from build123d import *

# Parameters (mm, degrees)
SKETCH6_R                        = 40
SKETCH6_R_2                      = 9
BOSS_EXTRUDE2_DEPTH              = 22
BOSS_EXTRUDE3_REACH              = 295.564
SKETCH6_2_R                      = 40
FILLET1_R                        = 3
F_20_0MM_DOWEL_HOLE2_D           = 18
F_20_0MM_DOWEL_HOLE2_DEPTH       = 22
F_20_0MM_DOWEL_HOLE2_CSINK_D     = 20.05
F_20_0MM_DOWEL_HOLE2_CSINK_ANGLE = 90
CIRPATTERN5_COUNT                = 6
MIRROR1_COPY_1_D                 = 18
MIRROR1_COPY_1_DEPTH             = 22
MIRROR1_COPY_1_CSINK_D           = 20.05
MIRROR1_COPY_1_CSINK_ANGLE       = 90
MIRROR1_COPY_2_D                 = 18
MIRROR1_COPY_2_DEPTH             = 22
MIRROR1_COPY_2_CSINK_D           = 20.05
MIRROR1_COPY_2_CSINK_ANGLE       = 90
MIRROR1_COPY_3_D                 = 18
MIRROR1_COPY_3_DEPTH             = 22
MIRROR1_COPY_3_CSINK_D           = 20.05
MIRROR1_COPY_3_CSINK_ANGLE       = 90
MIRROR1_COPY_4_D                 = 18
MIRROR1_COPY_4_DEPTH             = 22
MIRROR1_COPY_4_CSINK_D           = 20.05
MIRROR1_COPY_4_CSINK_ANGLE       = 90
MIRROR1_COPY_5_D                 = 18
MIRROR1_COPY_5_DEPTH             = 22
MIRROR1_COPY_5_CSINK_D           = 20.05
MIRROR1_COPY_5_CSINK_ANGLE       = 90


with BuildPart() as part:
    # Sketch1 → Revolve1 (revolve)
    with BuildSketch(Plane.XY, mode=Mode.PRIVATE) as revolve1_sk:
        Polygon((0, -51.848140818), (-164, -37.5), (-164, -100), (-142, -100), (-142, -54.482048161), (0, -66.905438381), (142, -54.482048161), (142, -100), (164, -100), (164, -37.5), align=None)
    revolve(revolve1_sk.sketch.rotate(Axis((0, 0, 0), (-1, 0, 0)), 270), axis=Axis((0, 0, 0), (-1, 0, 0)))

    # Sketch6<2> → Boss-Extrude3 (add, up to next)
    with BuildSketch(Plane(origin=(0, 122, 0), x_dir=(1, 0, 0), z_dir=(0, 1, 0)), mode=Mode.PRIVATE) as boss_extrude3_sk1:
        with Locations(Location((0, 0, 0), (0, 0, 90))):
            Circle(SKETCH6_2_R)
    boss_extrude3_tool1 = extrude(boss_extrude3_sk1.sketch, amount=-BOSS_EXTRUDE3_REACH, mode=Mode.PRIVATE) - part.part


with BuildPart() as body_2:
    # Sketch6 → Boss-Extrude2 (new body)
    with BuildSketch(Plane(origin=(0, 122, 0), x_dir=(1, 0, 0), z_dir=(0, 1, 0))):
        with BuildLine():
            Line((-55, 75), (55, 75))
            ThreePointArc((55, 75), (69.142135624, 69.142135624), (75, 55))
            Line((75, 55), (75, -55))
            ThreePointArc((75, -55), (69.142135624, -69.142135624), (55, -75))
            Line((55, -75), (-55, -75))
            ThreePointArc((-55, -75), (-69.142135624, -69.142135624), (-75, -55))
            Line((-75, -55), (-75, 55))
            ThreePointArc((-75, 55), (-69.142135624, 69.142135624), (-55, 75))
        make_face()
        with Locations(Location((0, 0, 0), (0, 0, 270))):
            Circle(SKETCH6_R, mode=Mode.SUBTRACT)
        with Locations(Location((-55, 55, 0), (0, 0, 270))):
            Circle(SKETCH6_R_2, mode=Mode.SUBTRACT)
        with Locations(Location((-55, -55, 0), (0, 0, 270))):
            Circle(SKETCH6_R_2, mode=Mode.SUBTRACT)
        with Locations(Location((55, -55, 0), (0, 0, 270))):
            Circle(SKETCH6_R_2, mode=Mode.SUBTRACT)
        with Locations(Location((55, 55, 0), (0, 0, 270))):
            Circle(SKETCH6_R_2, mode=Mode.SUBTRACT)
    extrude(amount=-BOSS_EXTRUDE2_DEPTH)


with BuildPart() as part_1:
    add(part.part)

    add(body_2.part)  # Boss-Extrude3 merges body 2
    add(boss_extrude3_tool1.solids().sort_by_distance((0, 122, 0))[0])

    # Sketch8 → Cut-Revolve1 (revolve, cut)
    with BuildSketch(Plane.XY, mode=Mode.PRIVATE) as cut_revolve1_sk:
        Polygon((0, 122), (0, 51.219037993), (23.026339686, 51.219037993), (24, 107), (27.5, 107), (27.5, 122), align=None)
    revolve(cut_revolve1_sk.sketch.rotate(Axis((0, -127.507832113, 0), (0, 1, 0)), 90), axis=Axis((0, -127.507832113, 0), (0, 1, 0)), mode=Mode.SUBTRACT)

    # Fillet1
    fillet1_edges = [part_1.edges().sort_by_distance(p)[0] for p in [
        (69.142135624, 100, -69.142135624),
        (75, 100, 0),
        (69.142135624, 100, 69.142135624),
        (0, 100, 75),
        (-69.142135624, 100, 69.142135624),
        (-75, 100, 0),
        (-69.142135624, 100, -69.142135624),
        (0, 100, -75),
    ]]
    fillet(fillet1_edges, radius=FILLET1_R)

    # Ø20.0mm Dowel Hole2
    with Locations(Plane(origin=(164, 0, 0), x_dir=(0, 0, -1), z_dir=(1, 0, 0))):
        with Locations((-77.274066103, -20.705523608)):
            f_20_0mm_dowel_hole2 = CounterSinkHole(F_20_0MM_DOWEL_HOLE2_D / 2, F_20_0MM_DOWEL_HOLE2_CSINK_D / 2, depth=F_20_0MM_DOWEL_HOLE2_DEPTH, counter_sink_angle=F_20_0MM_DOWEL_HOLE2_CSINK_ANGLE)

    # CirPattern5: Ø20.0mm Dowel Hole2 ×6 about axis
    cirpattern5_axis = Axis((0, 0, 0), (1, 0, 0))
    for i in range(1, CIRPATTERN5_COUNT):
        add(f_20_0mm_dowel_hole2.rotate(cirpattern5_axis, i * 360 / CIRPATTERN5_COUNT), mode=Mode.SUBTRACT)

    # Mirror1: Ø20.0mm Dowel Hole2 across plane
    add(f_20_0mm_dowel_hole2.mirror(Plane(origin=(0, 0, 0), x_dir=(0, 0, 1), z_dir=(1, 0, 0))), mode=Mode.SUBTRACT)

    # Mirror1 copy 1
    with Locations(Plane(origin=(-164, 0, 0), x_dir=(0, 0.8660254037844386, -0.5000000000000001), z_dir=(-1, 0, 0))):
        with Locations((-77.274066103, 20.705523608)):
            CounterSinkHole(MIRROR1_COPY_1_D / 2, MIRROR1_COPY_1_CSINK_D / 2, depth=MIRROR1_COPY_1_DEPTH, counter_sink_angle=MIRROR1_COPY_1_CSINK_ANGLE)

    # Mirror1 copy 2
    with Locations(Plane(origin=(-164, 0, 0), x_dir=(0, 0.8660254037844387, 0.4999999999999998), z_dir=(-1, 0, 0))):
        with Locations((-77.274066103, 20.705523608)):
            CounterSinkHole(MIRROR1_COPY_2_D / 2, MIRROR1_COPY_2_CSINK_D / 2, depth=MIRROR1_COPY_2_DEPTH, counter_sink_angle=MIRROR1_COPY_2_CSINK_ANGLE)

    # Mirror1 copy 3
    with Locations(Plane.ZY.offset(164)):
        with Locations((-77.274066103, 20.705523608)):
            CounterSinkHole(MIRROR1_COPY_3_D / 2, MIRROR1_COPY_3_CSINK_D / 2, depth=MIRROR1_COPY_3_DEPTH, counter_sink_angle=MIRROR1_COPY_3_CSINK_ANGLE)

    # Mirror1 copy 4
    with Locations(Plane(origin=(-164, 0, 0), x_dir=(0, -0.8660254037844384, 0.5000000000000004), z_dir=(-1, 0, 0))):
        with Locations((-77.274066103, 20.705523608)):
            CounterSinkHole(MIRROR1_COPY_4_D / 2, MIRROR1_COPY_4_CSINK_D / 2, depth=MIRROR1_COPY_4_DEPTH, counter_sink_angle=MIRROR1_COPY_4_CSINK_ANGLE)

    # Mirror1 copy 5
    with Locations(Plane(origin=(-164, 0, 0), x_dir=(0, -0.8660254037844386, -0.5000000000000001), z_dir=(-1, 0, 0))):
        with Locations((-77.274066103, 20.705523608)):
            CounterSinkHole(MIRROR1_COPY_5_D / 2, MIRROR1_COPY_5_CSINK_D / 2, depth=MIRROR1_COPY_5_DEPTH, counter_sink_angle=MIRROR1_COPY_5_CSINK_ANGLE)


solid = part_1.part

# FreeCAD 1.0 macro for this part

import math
import FreeCAD as App
import Part
import Sketcher
from FreeCAD import Vector
Q = App.Units.Quantity


def edges_at(feature, points):
    """Names of the edges that pass closest to the given points."""
    edges = feature.Shape.Edges
    near = lambda p: min(range(len(edges)), key=lambda i: edges[i].distToShape(Part.Vertex(*p))[0])
    return sorted({f"Edge{near(p) + 1}" for p in points})


def add_polygon(sketch, points):
    """Adds a closed chain of lines whose ends are joined by coincident constraints."""
    first, n = sketch.GeometryCount, len(points)
    for a, b in zip(points, points[1:] + points[:1]):
        sketch.addGeometry(Part.LineSegment(App.Vector(*a, 0), App.Vector(*b, 0)), False)
    for i in range(n):
        sketch.addConstraint(Sketcher.Constraint("Coincident", first + i, 2, first + (i + 1) % n, 1))

doc = App.newDocument("Part")
body = doc.addObject("PartDesign::Body", "Body")

# Sketch on XY plane
sketch1 = body.newObject("Sketcher::SketchObject", "Sketch")
sketch1.AttachmentSupport = (doc.getObject("XY_Plane"), [""])
sketch1.MapMode = "FlatFace"
add_polygon(sketch1, [(0, -52), (-164, -38), (-164, -100), (-142, -100), (-142, -54), (0, -67), (142, -54), (142, -100), (164, -100), (164, -38)])  # lines 0-9
sketch1.addConstraint(Sketcher.Constraint("Vertical", 1))
sketch1.addConstraint(Sketcher.Constraint("Horizontal", 2))
sketch1.addConstraint(Sketcher.Constraint("Vertical", 3))
sketch1.addConstraint(Sketcher.Constraint("Vertical", 6))
sketch1.addConstraint(Sketcher.Constraint("Horizontal", 7))
sketch1.addConstraint(Sketcher.Constraint("Vertical", 8))
sketch1.addConstraint(Sketcher.Constraint("Symmetric", 3, 2, 5, 2, -2))
sketch1.addConstraint(Sketcher.Constraint("Symmetric", 1, 2, 7, 2, -2))
sketch1.addConstraint(Sketcher.Constraint("PointOnObject", 4, 2, -2))
sketch1.addConstraint(Sketcher.Constraint("PointOnObject", 9, 2, -2))
sketch1.addConstraint(Sketcher.Constraint("Parallel", 0, 4))
sketch1.addConstraint(Sketcher.Constraint("Parallel", 5, 9))
sketch1.addConstraint(Sketcher.Constraint("DistanceX", 2, 1, 2, 2, Q("22 mm")))
sketch1.addConstraint(Sketcher.Constraint("Angle", 0, Q("175 deg")))
sketch1.addConstraint(Sketcher.Constraint("DistanceY", 1, 2, 1, 1, Q("62.5 mm")))
sketch1.addConstraint(Sketcher.Constraint("DistanceX", 0, 2, -1, 1, Q("164 mm")))
sketch1.addConstraint(Sketcher.Constraint("DistanceY", 1, 2, -1, 1, Q("100 mm")))
sketch1.addConstraint(Sketcher.Constraint("DistanceY", 3, 1, 3, 2, Q("45.517952 mm")))
revolution = body.newObject("PartDesign::Revolution", "Revolution")
revolution.Profile = sketch1
revolution.ReferenceAxis = (sketch1, ["H_Axis"])
revolution.Angle = 360
body2 = doc.addObject("PartDesign::Body", "Body001")

# Sketch on XZ plane
sketch2 = body2.newObject("Sketcher::SketchObject", "Sketch001")
sketch2.AttachmentSupport = (doc.getObject("XZ_Plane001"), [""])
sketch2.MapMode = "FlatFace"
sketch2.AttachmentOffset = App.Placement(Vector(0, 0, -122), App.Rotation())
sketch2.addGeometry(Part.LineSegment(Vector(55, -75, 0), Vector(-55, -75, 0)), False)
sketch2.addGeometry(Part.ArcOfCircle(Part.Circle(Vector(-55, -55, 0), Vector(0, 0, 1), 20), math.radians(180), math.radians(270)), False)
sketch2.addGeometry(Part.LineSegment(Vector(-75, -55, 0), Vector(-75, 55, 0)), False)
sketch2.addGeometry(Part.ArcOfCircle(Part.Circle(Vector(-55, 55, 0), Vector(0, 0, 1), 20), math.radians(90), math.radians(180)), False)
sketch2.addGeometry(Part.LineSegment(Vector(-55, 75, 0), Vector(55, 75, 0)), False)
sketch2.addGeometry(Part.ArcOfCircle(Part.Circle(Vector(55, 55, 0), Vector(0, 0, 1), 20), math.radians(0), math.radians(90)), False)
sketch2.addGeometry(Part.LineSegment(Vector(75, 55, 0), Vector(75, -55, 0)), False)
sketch2.addGeometry(Part.ArcOfCircle(Part.Circle(Vector(55, -55, 0), Vector(0, 0, 1), 20), math.radians(-90), math.radians(0)), False)
sketch2.addGeometry(Part.Circle(Vector(55, 55, 0), Vector(0, 0, 1), 9), False)
sketch2.addGeometry(Part.Circle(Vector(-55, 55, 0), Vector(0, 0, 1), 9), False)
sketch2.addGeometry(Part.Circle(Vector(0, 0, 0), Vector(0, 0, 1), 40), False)
sketch2.addGeometry(Part.Circle(Vector(55, -55, 0), Vector(0, 0, 1), 9), False)
sketch2.addGeometry(Part.Circle(Vector(-55, -55, 0), Vector(0, 0, 1), 9), False)
sketch2.addConstraint(Sketcher.Constraint("Tangent", 0, 2, 1, 2))
sketch2.addConstraint(Sketcher.Constraint("Tangent", 1, 1, 2, 1))
sketch2.addConstraint(Sketcher.Constraint("Tangent", 2, 2, 3, 2))
sketch2.addConstraint(Sketcher.Constraint("Tangent", 3, 1, 4, 1))
sketch2.addConstraint(Sketcher.Constraint("Tangent", 4, 2, 5, 2))
sketch2.addConstraint(Sketcher.Constraint("Tangent", 5, 1, 6, 1))
sketch2.addConstraint(Sketcher.Constraint("Tangent", 6, 2, 7, 2))
sketch2.addConstraint(Sketcher.Constraint("Tangent", 7, 1, 0, 1))
sketch2.addConstraint(Sketcher.Constraint("Horizontal", 0))
sketch2.addConstraint(Sketcher.Constraint("Vertical", 2))
sketch2.addConstraint(Sketcher.Constraint("Horizontal", 4))
sketch2.addConstraint(Sketcher.Constraint("Vertical", 6))
sketch2.addConstraint(Sketcher.Constraint("Coincident", 10, 3, -1, 1))
sketch2.addConstraint(Sketcher.Constraint("Coincident", 8, 3, 5, 3))
sketch2.addConstraint(Sketcher.Constraint("Coincident", 9, 3, 3, 3))
sketch2.addConstraint(Sketcher.Constraint("Coincident", 11, 3, 7, 3))
sketch2.addConstraint(Sketcher.Constraint("Coincident", 12, 3, 1, 3))
sketch2.addConstraint(Sketcher.Constraint("Equal", 1, 3))
sketch2.addConstraint(Sketcher.Constraint("Equal", 3, 5))
sketch2.addConstraint(Sketcher.Constraint("Equal", 5, 7))
sketch2.addConstraint(Sketcher.Constraint("Equal", 8, 9))
sketch2.addConstraint(Sketcher.Constraint("Equal", 9, 11))
sketch2.addConstraint(Sketcher.Constraint("Equal", 11, 12))
sketch2.addConstraint(Sketcher.Constraint("Symmetric", 1, 3, 5, 3, -1, 1))
sketch2.addConstraint(Sketcher.Constraint("Equal", 4, 2))
sketch2.addConstraint(Sketcher.Constraint("Diameter", 8, Q("18 mm")))
sketch2.addConstraint(Sketcher.Constraint("Diameter", 10, Q("80 mm")))
sketch2.addConstraint(Sketcher.Constraint("Radius", 1, Q("20 mm")))
sketch2.addConstraint(Sketcher.Constraint("DistanceX", 0, 2, 0, 1, Q("110 mm")))
pad1 = body2.newObject("PartDesign::Pad", "Pad")
pad1.Profile = sketch2
pad1.Length = 22
body.AllowCompound = True
doc.recompute()

boolean = body.newObject("PartDesign::Boolean", "Boolean")
boolean.Type = "Fuse"
boolean.addObjects([body2])

# Sketch on XZ plane
sketch3 = body.newObject("Sketcher::SketchObject", "Sketch002")
sketch3.AttachmentSupport = (doc.getObject("XZ_Plane"), [""])
sketch3.MapMode = "FlatFace"
sketch3.AttachmentOffset = App.Placement(Vector(0, 0, -122), App.Rotation())
sketch3.addGeometry(Part.Circle(Vector(0, 0, 0), Vector(0, 0, 1), 40), False)
sketch3.addConstraint(Sketcher.Constraint("Coincident", 0, 3, -1, 1))
sketch3.addConstraint(Sketcher.Constraint("Diameter", 0, Q("80 mm")))
pad2 = body.newObject("PartDesign::Pad", "Pad001")
pad2.Profile = sketch3
pad2.Type = "UpToFirst"

# Sketch on XY plane
sketch4 = body.newObject("Sketcher::SketchObject", "Sketch003")
sketch4.AttachmentSupport = (doc.getObject("XY_Plane"), [""])
sketch4.MapMode = "FlatFace"
add_polygon(sketch4, [(0, 122), (0, 51.2), (23, 51.2), (24, 107), (27.5, 107), (27.5, 122)])  # lines 0-5
sketch4.addConstraint(Sketcher.Constraint("Vertical", 0))
sketch4.addConstraint(Sketcher.Constraint("Horizontal", 1))
sketch4.addConstraint(Sketcher.Constraint("Horizontal", 3))
sketch4.addConstraint(Sketcher.Constraint("Vertical", 4))
sketch4.addConstraint(Sketcher.Constraint("Horizontal", 5))
sketch4.addConstraint(Sketcher.Constraint("PointOnObject", 0, 2, -2))
sketch4.addConstraint(Sketcher.Constraint("DistanceY", 4, 1, 4, 2, Q("15 mm")))
sketch4.addConstraint(Sketcher.Constraint("Angle", 2, Q("89 deg")))
sketch4.addConstraint(Sketcher.Constraint("DistanceX", 3, 1, 3, 2, Q("3.5 mm")))
sketch4.addConstraint(Sketcher.Constraint("DistanceX", 5, 2, 5, 1, Q("27.5 mm")))
sketch4.addConstraint(Sketcher.Constraint("DistanceY", -1, 1, 2, 2, Q("107 mm")))
sketch4.addConstraint(Sketcher.Constraint("DistanceX", 1, 1, 1, 2, Q("23.02634 mm")))
groove = body.newObject("PartDesign::Groove", "Groove")
groove.Profile = sketch4
groove.ReferenceAxis = (sketch4, ["V_Axis"])
groove.Angle = 360
doc.recompute()

fillet = body.newObject("PartDesign::Fillet", "Fillet")
fillet.Base = (groove, edges_at(groove, [
    (69.142, 100, -69.142),
    (75, 100, 0),
    (69.142, 100, 69.142),
    (0, 100, 75),
    (-69.142, 100, 69.142),
    (-75, 100, 0),
    (-69.142, 100, -69.142),
    (0, 100, -75),
]))
fillet.Radius = 3

# Sketch on YZ plane
sketch5 = body.newObject("Sketcher::SketchObject", "Sketch004")
sketch5.AttachmentSupport = (doc.getObject("YZ_Plane"), [""])
sketch5.MapMode = "FlatFace"
sketch5.AttachmentOffset = App.Placement(Vector(0, 0, 164), App.Rotation())
sketch5.addGeometry(Part.Circle(Vector(-21, 77, 0), Vector(0, 0, 1), 9), False)
sketch5.addConstraint(Sketcher.Constraint("Diameter", 0, Q("18 mm")))
sketch5.addConstraint(Sketcher.Constraint("DistanceX", 0, 3, -1, 1, Q("20.705524 mm")))
sketch5.addConstraint(Sketcher.Constraint("DistanceY", -1, 1, 0, 3, Q("77.274066 mm")))
doc.recompute()
hole = body.newObject("PartDesign::Hole", "Hole")
hole.Profile = sketch5
hole.ThreadType = "None"
hole.Diameter = 18
hole.DepthType = "Dimension"
hole.Depth = 22
hole.DrillPoint = "Flat"
hole.HoleCutType = "Countersink"
hole.HoleCutDiameter = 20.05
hole.HoleCutCountersinkAngle = 90
doc.recompute()

polarpattern = body.newObject("PartDesign::PolarPattern", "PolarPattern")
polarpattern.Originals = [hole]
polarpattern.Axis = (doc.getObject("X_Axis"), [""])
polarpattern.Angle = 360
polarpattern.Occurrences = 6
body.Tip = polarpattern
doc.recompute()

mirrored = body.newObject("PartDesign::Mirrored", "Mirrored")
mirrored.Originals = [hole]
mirrored.MirrorPlane = (doc.getObject("YZ_Plane"), [""])
body.Tip = mirrored

# Sketch on YZ plane
sketch6 = body.newObject("Sketcher::SketchObject", "Sketch005")
sketch6.AttachmentSupport = (doc.getObject("YZ_Plane"), [""])
sketch6.MapMode = "FlatFace"
sketch6.AttachmentOffset = App.Placement(Vector(0, 0, -164), App.Rotation())
sketch6.addGeometry(Part.Circle(Vector(-77, 21, 0), Vector(0, 0, 1), 9), False)
sketch6.addConstraint(Sketcher.Constraint("Diameter", 0, Q("18 mm")))
sketch6.addConstraint(Sketcher.Constraint("DistanceX", 0, 3, -1, 1, Q("77.274066 mm")))
sketch6.addConstraint(Sketcher.Constraint("DistanceY", -1, 1, 0, 3, Q("20.705524 mm")))
doc.recompute()
hole2 = body.newObject("PartDesign::Hole", "Hole001")
hole2.Profile = sketch6
hole2.ThreadType = "None"
hole2.Diameter = 18
hole2.DepthType = "Dimension"
hole2.Depth = 22
hole2.DrillPoint = "Flat"
hole2.HoleCutType = "Countersink"
hole2.HoleCutDiameter = 20.05
hole2.HoleCutCountersinkAngle = 90
hole2.Reversed = True

# Sketch on YZ plane
sketch7 = body.newObject("Sketcher::SketchObject", "Sketch006")
sketch7.AttachmentSupport = (doc.getObject("YZ_Plane"), [""])
sketch7.MapMode = "FlatFace"
sketch7.AttachmentOffset = App.Placement(Vector(0, 0, -164), App.Rotation())
sketch7.addGeometry(Part.Circle(Vector(-57, -57, 0), Vector(0, 0, 1), 9), False)
sketch7.addConstraint(Sketcher.Constraint("Diameter", 0, Q("18 mm")))
sketch7.addConstraint(Sketcher.Constraint("DistanceX", 0, 3, -1, 1, Q("56.568543 mm")))
sketch7.addConstraint(Sketcher.Constraint("DistanceY", 0, 3, -1, 1, Q("56.568542 mm")))
doc.recompute()
hole3 = body.newObject("PartDesign::Hole", "Hole002")
hole3.Profile = sketch7
hole3.ThreadType = "None"
hole3.Diameter = 18
hole3.DepthType = "Dimension"
hole3.Depth = 22
hole3.DrillPoint = "Flat"
hole3.HoleCutType = "Countersink"
hole3.HoleCutDiameter = 20.05
hole3.HoleCutCountersinkAngle = 90
hole3.Reversed = True

# Sketch on YZ plane
sketch8 = body.newObject("Sketcher::SketchObject", "Sketch007")
sketch8.AttachmentSupport = (doc.getObject("YZ_Plane"), [""])
sketch8.MapMode = "FlatFace"
sketch8.AttachmentOffset = App.Placement(Vector(0, 0, -164), App.Rotation())
sketch8.addGeometry(Part.Circle(Vector(21, -77, 0), Vector(0, 0, 1), 9), False)
sketch8.addConstraint(Sketcher.Constraint("Diameter", 0, Q("18 mm")))
sketch8.addConstraint(Sketcher.Constraint("DistanceX", -1, 1, 0, 3, Q("20.705524 mm")))
sketch8.addConstraint(Sketcher.Constraint("DistanceY", 0, 3, -1, 1, Q("77.274066 mm")))
doc.recompute()
hole4 = body.newObject("PartDesign::Hole", "Hole003")
hole4.Profile = sketch8
hole4.ThreadType = "None"
hole4.Diameter = 18
hole4.DepthType = "Dimension"
hole4.Depth = 22
hole4.DrillPoint = "Flat"
hole4.HoleCutType = "Countersink"
hole4.HoleCutDiameter = 20.05
hole4.HoleCutCountersinkAngle = 90
hole4.Reversed = True

# Sketch on YZ plane
sketch9 = body.newObject("Sketcher::SketchObject", "Sketch008")
sketch9.AttachmentSupport = (doc.getObject("YZ_Plane"), [""])
sketch9.MapMode = "FlatFace"
sketch9.AttachmentOffset = App.Placement(Vector(0, 0, -164), App.Rotation())
sketch9.addGeometry(Part.Circle(Vector(77, -21, 0), Vector(0, 0, 1), 9), False)
sketch9.addConstraint(Sketcher.Constraint("Diameter", 0, Q("18 mm")))
sketch9.addConstraint(Sketcher.Constraint("DistanceX", -1, 1, 0, 3, Q("77.274066 mm")))
sketch9.addConstraint(Sketcher.Constraint("DistanceY", 0, 3, -1, 1, Q("20.705524 mm")))
doc.recompute()
hole5 = body.newObject("PartDesign::Hole", "Hole004")
hole5.Profile = sketch9
hole5.ThreadType = "None"
hole5.Diameter = 18
hole5.DepthType = "Dimension"
hole5.Depth = 22
hole5.DrillPoint = "Flat"
hole5.HoleCutType = "Countersink"
hole5.HoleCutDiameter = 20.05
hole5.HoleCutCountersinkAngle = 90
hole5.Reversed = True

# Sketch on YZ plane
sketch10 = body.newObject("Sketcher::SketchObject", "Sketch009")
sketch10.AttachmentSupport = (doc.getObject("YZ_Plane"), [""])
sketch10.MapMode = "FlatFace"
sketch10.AttachmentOffset = App.Placement(Vector(0, 0, -164), App.Rotation())
sketch10.addGeometry(Part.Circle(Vector(57, 57, 0), Vector(0, 0, 1), 9), False)
sketch10.addConstraint(Sketcher.Constraint("Diameter", 0, Q("18 mm")))
sketch10.addConstraint(Sketcher.Constraint("DistanceX", -1, 1, 0, 3, Q("56.568543 mm")))
sketch10.addConstraint(Sketcher.Constraint("DistanceY", -1, 1, 0, 3, Q("56.568542 mm")))
doc.recompute()
hole6 = body.newObject("PartDesign::Hole", "Hole005")
hole6.Profile = sketch10
hole6.ThreadType = "None"
hole6.Diameter = 18
hole6.DepthType = "Dimension"
hole6.Depth = 22
hole6.DrillPoint = "Flat"
hole6.HoleCutType = "Countersink"
hole6.HoleCutDiameter = 20.05
hole6.HoleCutCountersinkAngle = 90
hole6.Reversed = True

doc.recompute()
